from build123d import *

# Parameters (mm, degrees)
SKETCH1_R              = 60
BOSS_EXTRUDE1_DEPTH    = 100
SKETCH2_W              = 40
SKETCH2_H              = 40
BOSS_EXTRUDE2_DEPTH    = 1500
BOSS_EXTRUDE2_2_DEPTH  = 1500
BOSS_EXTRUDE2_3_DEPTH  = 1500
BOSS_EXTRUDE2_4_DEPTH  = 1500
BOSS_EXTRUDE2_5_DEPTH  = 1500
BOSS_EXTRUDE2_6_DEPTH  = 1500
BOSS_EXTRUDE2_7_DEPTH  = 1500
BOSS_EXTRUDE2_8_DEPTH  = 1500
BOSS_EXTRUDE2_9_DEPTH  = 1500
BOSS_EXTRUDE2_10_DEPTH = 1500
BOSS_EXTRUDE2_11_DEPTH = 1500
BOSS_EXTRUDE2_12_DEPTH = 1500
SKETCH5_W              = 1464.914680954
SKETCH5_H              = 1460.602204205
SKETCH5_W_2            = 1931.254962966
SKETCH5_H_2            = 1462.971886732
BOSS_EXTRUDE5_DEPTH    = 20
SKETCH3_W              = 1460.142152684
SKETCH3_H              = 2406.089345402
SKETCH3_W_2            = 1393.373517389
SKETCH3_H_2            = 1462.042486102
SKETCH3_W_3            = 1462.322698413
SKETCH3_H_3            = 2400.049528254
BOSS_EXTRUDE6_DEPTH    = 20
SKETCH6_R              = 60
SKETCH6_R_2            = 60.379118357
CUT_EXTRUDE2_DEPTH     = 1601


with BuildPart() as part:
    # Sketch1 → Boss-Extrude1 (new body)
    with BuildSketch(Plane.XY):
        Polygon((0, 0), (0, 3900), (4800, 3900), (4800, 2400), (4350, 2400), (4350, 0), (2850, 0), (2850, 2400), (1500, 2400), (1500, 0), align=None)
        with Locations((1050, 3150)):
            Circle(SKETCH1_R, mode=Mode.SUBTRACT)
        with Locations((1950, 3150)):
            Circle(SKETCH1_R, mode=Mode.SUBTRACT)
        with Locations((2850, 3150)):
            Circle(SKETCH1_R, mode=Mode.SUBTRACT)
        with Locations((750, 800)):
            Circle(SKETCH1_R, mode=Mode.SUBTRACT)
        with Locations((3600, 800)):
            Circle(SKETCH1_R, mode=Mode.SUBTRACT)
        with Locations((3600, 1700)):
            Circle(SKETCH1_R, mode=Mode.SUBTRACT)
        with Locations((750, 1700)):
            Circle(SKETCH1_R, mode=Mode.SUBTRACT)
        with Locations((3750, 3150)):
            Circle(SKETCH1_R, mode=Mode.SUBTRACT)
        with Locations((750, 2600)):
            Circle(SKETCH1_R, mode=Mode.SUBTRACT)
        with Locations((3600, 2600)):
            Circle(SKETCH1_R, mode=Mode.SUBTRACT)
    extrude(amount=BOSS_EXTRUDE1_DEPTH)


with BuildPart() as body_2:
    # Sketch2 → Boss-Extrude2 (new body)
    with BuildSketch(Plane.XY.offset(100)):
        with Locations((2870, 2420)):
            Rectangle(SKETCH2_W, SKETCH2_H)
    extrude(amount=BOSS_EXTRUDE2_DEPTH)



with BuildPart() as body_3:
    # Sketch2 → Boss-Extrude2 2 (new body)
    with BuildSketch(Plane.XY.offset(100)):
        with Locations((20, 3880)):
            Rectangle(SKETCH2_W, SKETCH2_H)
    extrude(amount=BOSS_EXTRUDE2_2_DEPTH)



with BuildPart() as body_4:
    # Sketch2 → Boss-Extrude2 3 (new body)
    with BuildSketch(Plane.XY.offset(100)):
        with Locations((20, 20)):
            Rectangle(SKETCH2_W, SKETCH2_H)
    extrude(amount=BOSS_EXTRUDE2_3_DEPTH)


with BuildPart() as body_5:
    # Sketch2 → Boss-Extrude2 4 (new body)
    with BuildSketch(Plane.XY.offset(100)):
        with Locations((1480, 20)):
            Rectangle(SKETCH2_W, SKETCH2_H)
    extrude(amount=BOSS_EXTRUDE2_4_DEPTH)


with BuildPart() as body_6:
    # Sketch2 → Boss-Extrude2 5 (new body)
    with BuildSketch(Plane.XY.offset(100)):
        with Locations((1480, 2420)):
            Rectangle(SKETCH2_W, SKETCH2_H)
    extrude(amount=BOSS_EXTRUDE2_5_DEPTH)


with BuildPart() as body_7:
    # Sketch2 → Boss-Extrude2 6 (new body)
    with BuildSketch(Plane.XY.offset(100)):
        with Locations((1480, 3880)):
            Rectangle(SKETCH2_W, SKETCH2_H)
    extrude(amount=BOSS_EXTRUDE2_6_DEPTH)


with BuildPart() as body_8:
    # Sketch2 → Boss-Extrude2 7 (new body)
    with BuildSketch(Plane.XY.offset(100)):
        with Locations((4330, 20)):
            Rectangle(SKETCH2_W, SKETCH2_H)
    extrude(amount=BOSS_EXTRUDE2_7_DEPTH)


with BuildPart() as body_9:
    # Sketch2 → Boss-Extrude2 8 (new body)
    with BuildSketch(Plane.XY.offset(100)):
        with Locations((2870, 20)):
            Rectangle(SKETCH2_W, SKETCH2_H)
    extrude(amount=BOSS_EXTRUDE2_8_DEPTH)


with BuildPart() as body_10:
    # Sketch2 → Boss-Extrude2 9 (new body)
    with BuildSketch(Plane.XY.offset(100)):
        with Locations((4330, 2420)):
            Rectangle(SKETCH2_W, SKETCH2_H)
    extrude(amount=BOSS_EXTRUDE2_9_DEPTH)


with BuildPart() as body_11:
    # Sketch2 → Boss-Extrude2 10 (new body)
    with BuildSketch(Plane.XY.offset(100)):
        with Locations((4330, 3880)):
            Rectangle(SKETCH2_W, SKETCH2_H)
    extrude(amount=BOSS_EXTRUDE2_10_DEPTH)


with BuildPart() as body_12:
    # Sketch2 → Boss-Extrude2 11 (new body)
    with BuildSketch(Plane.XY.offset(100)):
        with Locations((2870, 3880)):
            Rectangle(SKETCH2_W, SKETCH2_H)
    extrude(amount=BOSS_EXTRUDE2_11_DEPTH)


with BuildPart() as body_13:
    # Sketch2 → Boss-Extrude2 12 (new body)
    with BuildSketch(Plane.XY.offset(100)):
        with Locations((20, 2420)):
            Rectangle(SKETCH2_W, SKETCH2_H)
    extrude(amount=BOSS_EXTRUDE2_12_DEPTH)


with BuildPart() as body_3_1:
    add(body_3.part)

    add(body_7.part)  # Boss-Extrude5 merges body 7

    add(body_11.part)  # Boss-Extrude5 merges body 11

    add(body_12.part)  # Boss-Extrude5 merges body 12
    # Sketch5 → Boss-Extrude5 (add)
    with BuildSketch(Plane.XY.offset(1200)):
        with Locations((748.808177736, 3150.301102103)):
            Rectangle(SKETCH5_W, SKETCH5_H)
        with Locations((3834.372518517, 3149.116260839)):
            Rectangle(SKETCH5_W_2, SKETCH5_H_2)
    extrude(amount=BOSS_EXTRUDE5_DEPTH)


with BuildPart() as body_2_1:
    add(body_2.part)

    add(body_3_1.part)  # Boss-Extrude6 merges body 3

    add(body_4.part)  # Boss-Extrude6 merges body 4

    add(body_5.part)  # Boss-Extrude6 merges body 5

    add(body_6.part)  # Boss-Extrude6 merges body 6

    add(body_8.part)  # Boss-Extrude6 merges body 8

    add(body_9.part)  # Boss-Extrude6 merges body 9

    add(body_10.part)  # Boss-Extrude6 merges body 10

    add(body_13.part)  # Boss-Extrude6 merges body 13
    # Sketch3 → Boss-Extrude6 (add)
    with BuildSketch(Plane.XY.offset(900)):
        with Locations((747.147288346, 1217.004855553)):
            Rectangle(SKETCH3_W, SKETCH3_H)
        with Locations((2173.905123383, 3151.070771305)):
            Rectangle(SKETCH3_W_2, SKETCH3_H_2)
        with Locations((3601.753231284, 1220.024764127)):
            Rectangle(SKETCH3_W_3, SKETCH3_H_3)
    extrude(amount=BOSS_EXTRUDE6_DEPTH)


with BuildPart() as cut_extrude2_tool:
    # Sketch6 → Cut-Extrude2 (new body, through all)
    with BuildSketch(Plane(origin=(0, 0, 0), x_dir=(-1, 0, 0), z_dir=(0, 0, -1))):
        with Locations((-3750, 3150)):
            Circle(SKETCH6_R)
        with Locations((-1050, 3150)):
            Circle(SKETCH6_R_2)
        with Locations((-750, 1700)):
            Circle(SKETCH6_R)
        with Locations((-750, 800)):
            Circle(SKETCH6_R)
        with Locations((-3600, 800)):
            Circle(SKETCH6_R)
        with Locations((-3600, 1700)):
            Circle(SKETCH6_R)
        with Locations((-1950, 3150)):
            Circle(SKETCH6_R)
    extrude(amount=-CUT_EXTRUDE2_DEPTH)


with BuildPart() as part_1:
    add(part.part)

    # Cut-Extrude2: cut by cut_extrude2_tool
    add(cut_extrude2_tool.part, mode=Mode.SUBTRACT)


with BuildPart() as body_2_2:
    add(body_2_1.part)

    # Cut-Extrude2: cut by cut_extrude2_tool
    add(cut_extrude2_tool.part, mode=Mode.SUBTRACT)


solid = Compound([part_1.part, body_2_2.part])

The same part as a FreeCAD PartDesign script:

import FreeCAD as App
import Part
import Sketcher
from FreeCAD import Vector


def add_polygon(sketch, points):
    """Adds a closed chain of lines whose ends are joined by coincident constraints."""
    first, n = sketch.GeometryCount, len(points)
    for a, b in zip(points, points[1:] + points[:1]):
        sketch.addGeometry(Part.LineSegment(App.Vector(*a, 0), App.Vector(*b, 0)), False)
    for i in range(n):
        sketch.addConstraint(Sketcher.Constraint("Coincident", first + i, 2, first + (i + 1) % n, 1))

doc = App.newDocument("Part")
params = doc.addObject("Spreadsheet::Sheet", "Params")
for row, (alias, value) in enumerate([
    ("sketch1_diameter", "120 mm"),
    ("sketch1_width", "1500 mm"),
    ("sketch1_width2", "1350 mm"),
    ("sketch1_width3", "450 mm"),
    ("sketch1_height", "3900 mm"),
    ("pad1_length", "100 mm"),
    ("sketch2_width", "40 mm"),
    ("pad2_length", "1500 mm"),
    ("sketch3_width", "40 mm"),
    ("pad3_length", "1500 mm"),
    ("sketch4_width", "40 mm"),
    ("pad4_length", "1500 mm"),
    ("sketch5_width", "40 mm"),
    ("pad5_length", "1500 mm"),
    ("sketch6_width", "40 mm"),
    ("pad6_length", "1500 mm"),
    ("sketch7_width", "40 mm"),
    ("pad7_length", "1500 mm"),
    ("sketch8_width", "40 mm"),
    ("pad8_length", "1500 mm"),
    ("sketch9_width", "40 mm"),
    ("pad9_length", "1500 mm"),
    ("sketch10_width", "40 mm"),
    ("pad10_length", "1500 mm"),
    ("sketch11_width", "40 mm"),
    ("pad11_length", "1500 mm"),
    ("sketch12_width", "40 mm"),
    ("pad12_length", "1500 mm"),
    ("sketch13_width", "40 mm"),
    ("pad13_length", "1500 mm"),
    ("pad14_length", "20 mm"),
    ("pad15_length", "20 mm"),
    ("sketch16_diameter", "120 mm"),
    ("pad16_length", "1601 mm"),
], start=1):
    params.set(f"A{row}", alias)
    params.set(f"B{row}", "=" + value)
    params.setAlias(f"B{row}", alias)

body = doc.addObject("PartDesign::Body", "Body")

# Sketch on XY plane
sketch1 = doc.addObject("Sketcher::SketchObject", "Sketch")
body.addObject(sketch1)
sketch1.AttachmentSupport = (doc.XY_Plane, [""])
sketch1.MapMode = "FlatFace"
add_polygon(sketch1, [(0, 3900), (0, 0), (1500, 0), (1500, 2400), (2850, 2400), (2850, 0), (4350, 0), (4350, 2400), (4800, 2400), (4800, 3900)])  # lines 0-9
sketch1.addGeometry(Part.Circle(Vector(3600, 800, 0), Vector(0, 0, 1), 60), False)  # 10
sketch1.addGeometry(Part.Circle(Vector(3600, 1700, 0), Vector(0, 0, 1), 60), False)  # 11
sketch1.addGeometry(Part.Circle(Vector(750, 800, 0), Vector(0, 0, 1), 60), False)  # 12
sketch1.addGeometry(Part.Circle(Vector(750, 1700, 0), Vector(0, 0, 1), 60), False)  # 13
sketch1.addGeometry(Part.Circle(Vector(3600, 2600, 0), Vector(0, 0, 1), 60), False)  # 14
sketch1.addGeometry(Part.Circle(Vector(3750, 3150, 0), Vector(0, 0, 1), 60), False)  # 15
sketch1.addGeometry(Part.Circle(Vector(2850, 3150, 0), Vector(0, 0, 1), 60), False)  # 16
sketch1.addGeometry(Part.Circle(Vector(1950, 3150, 0), Vector(0, 0, 1), 60), False)  # 17
sketch1.addGeometry(Part.Circle(Vector(750, 2600, 0), Vector(0, 0, 1), 60), False)  # 18
sketch1.addGeometry(Part.Circle(Vector(1050, 3150, 0), Vector(0, 0, 1), 60), False)  # 19
sketch1.addConstraint(Sketcher.Constraint("Vertical", 0))
sketch1.addConstraint(Sketcher.Constraint("Horizontal", 1))
sketch1.addConstraint(Sketcher.Constraint("Vertical", 2))
sketch1.addConstraint(Sketcher.Constraint("Horizontal", 3))
sketch1.addConstraint(Sketcher.Constraint("Vertical", 4))
sketch1.addConstraint(Sketcher.Constraint("Horizontal", 5))
sketch1.addConstraint(Sketcher.Constraint("Vertical", 6))
sketch1.addConstraint(Sketcher.Constraint("Horizontal", 7))
sketch1.addConstraint(Sketcher.Constraint("Vertical", 8))
sketch1.addConstraint(Sketcher.Constraint("Horizontal", 9))
sketch1.addConstraint(Sketcher.Constraint("Coincident", 0, 2, -1, 1))
sketch1.addConstraint(Sketcher.Constraint("Equal", 10, 11))
sketch1.addConstraint(Sketcher.Constraint("Equal", 11, 12))
sketch1.addConstraint(Sketcher.Constraint("Equal", 12, 13))
sketch1.addConstraint(Sketcher.Constraint("Equal", 13, 14))
sketch1.addConstraint(Sketcher.Constraint("Equal", 14, 15))
sketch1.addConstraint(Sketcher.Constraint("Equal", 15, 16))
sketch1.addConstraint(Sketcher.Constraint("Equal", 16, 17))
sketch1.addConstraint(Sketcher.Constraint("Equal", 17, 18))
sketch1.addConstraint(Sketcher.Constraint("Equal", 18, 19))
sketch1.addConstraint(Sketcher.Constraint("PointOnObject", 4, 2, -1))
sketch1.addConstraint(Sketcher.Constraint("Horizontal", 10, 3, 12, 3))
sketch1.addConstraint(Sketcher.Constraint("Horizontal", 11, 3, 13, 3))
sketch1.addConstraint(Sketcher.Constraint("Horizontal", 15, 3, 16, 3))
sketch1.addConstraint(Sketcher.Constraint("Horizontal", 16, 3, 17, 3))
sketch1.addConstraint(Sketcher.Constraint("Horizontal", 14, 3, 18, 3))
sketch1.addConstraint(Sketcher.Constraint("Horizontal", 17, 3, 19, 3))
sketch1.addConstraint(Sketcher.Constraint("Horizontal", 3, 2, 6, 2))
sketch1.addConstraint(Sketcher.Constraint("Vertical", 10, 3, 11, 3))
sketch1.addConstraint(Sketcher.Constraint("Vertical", 12, 3, 13, 3))
sketch1.addConstraint(Sketcher.Constraint("Vertical", 11, 3, 14, 3))
sketch1.addConstraint(Sketcher.Constraint("Vertical", 13, 3, 18, 3))
sketch1.addConstraint(Sketcher.Constraint("Vertical", 16, 3, 3, 2))
sketch1.addConstraint(Sketcher.Constraint("Equal", 1, 5))
sketch1.addConstraint(Sketcher.Constraint("Equal", 5, 8))
sketch1.addConstraint(Sketcher.Constraint("Diameter", 10, 120.0))
sketch1.addConstraint(Sketcher.Constraint("DistanceX", 1, 1, 1, 2, 1500.0))
sketch1.addConstraint(Sketcher.Constraint("DistanceX", 3, 1, 3, 2, 1350.0))
sketch1.addConstraint(Sketcher.Constraint("DistanceX", 7, 1, 7, 2, 450.0))
sketch1.addConstraint(Sketcher.Constraint("DistanceY", 0, 2, 0, 1, 3900.0))
sketch1.addConstraint(Sketcher.Constraint("DistanceX", -1, 1, 10, 3, 3600.0))
sketch1.addConstraint(Sketcher.Constraint("DistanceY", -1, 1, 10, 3, 800.0))
sketch1.addConstraint(Sketcher.Constraint("DistanceY", -1, 1, 11, 3, 1700.0))
sketch1.addConstraint(Sketcher.Constraint("DistanceX", -1, 1, 12, 3, 750.0))
sketch1.addConstraint(Sketcher.Constraint("DistanceY", -1, 1, 14, 3, 2600.0))
sketch1.addConstraint(Sketcher.Constraint("DistanceX", -1, 1, 15, 3, 3750.0))
sketch1.addConstraint(Sketcher.Constraint("DistanceY", -1, 1, 15, 3, 3150.0))
sketch1.addConstraint(Sketcher.Constraint("DistanceX", -1, 1, 17, 3, 1950.0))
sketch1.addConstraint(Sketcher.Constraint("DistanceX", -1, 1, 19, 3, 1050.0))
sketch1.setExpression("Constraints[45]", "Params.sketch1_diameter")
sketch1.setExpression("Constraints[46]", "Params.sketch1_width")
sketch1.setExpression("Constraints[47]", "Params.sketch1_width2")
sketch1.setExpression("Constraints[48]", "Params.sketch1_width3")
sketch1.setExpression("Constraints[49]", "Params.sketch1_height")
pad1 = doc.addObject("PartDesign::Pad", "Pad")
body.addObject(pad1)
pad1.Profile = sketch1
pad1.setExpression("Length", "Params.pad1_length")
body2 = doc.addObject("PartDesign::Body", "Body001")

# Sketch on XY plane
sketch2 = doc.addObject("Sketcher::SketchObject", "Sketch001")
body2.addObject(sketch2)
sketch2.AttachmentSupport = (doc.getObject("XY_Plane001"), [""])
sketch2.MapMode = "FlatFace"
sketch2.AttachmentOffset = App.Placement(Vector(0, 0, 100), App.Rotation())
add_polygon(sketch2, [(2850, 2440), (2850, 2400), (2890, 2400), (2890, 2440)])  # lines 0-3
sketch2.addConstraint(Sketcher.Constraint("Vertical", 0))
sketch2.addConstraint(Sketcher.Constraint("Horizontal", 1))
sketch2.addConstraint(Sketcher.Constraint("Vertical", 2))
sketch2.addConstraint(Sketcher.Constraint("Horizontal", 3))
sketch2.addConstraint(Sketcher.Constraint("Equal", 3, 0))
sketch2.addConstraint(Sketcher.Constraint("DistanceX", 1, 1, 1, 2, 40.0))
sketch2.addConstraint(Sketcher.Constraint("DistanceX", -1, 1, 0, 2, 2850.0))
sketch2.addConstraint(Sketcher.Constraint("DistanceY", -1, 1, 0, 2, 2400.0))
sketch2.setExpression("Constraints[9]", "Params.sketch2_width")
pad2 = doc.addObject("PartDesign::Pad", "Pad001")
body2.addObject(pad2)
pad2.Profile = sketch2
pad2.setExpression("Length", "Params.pad2_length")
body3 = doc.addObject("PartDesign::Body", "Body002")

# Sketch on XY plane
sketch3 = doc.addObject("Sketcher::SketchObject", "Sketch002")
body3.addObject(sketch3)
sketch3.AttachmentSupport = (doc.getObject("XY_Plane002"), [""])
sketch3.MapMode = "FlatFace"
sketch3.AttachmentOffset = App.Placement(Vector(0, 0, 100), App.Rotation())
add_polygon(sketch3, [(0, 3900), (0, 3860), (40, 3860), (40, 3900)])  # lines 0-3
sketch3.addConstraint(Sketcher.Constraint("Vertical", 0))
sketch3.addConstraint(Sketcher.Constraint("Horizontal", 1))
sketch3.addConstraint(Sketcher.Constraint("Vertical", 2))
sketch3.addConstraint(Sketcher.Constraint("Horizontal", 3))
sketch3.addConstraint(Sketcher.Constraint("PointOnObject", 0, 2, -2))
sketch3.addConstraint(Sketcher.Constraint("Equal", 3, 0))
sketch3.addConstraint(Sketcher.Constraint("DistanceX", 1, 1, 1, 2, 40.0))
sketch3.addConstraint(Sketcher.Constraint("DistanceY", -1, 1, 0, 2, 3860.0))
sketch3.setExpression("Constraints[10]", "Params.sketch3_width")
pad3 = doc.addObject("PartDesign::Pad", "Pad002")
body3.addObject(pad3)
pad3.Profile = sketch3
pad3.setExpression("Length", "Params.pad3_length")
body4 = doc.addObject("PartDesign::Body", "Body003")

# Sketch on XY plane
sketch4 = doc.addObject("Sketcher::SketchObject", "Sketch003")
body4.addObject(sketch4)
sketch4.AttachmentSupport = (doc.getObject("XY_Plane003"), [""])
sketch4.MapMode = "FlatFace"
sketch4.AttachmentOffset = App.Placement(Vector(0, 0, 100), App.Rotation())
add_polygon(sketch4, [(0, 40), (0, 0), (40, 0), (40, 40)])  # lines 0-3
sketch4.addConstraint(Sketcher.Constraint("Vertical", 0))
sketch4.addConstraint(Sketcher.Constraint("Horizontal", 1))
sketch4.addConstraint(Sketcher.Constraint("Vertical", 2))
sketch4.addConstraint(Sketcher.Constraint("Horizontal", 3))
sketch4.addConstraint(Sketcher.Constraint("Coincident", 0, 2, -1, 1))
sketch4.addConstraint(Sketcher.Constraint("Equal", 3, 0))
sketch4.addConstraint(Sketcher.Constraint("DistanceX", 1, 1, 1, 2, 40.0))
sketch4.setExpression("Constraints[10]", "Params.sketch4_width")
pad4 = doc.addObject("PartDesign::Pad", "Pad003")
body4.addObject(pad4)
pad4.Profile = sketch4
pad4.setExpression("Length", "Params.pad4_length")
body5 = doc.addObject("PartDesign::Body", "Body004")

# Sketch on XY plane
sketch5 = doc.addObject("Sketcher::SketchObject", "Sketch004")
body5.addObject(sketch5)
sketch5.AttachmentSupport = (doc.getObject("XY_Plane004"), [""])
sketch5.MapMode = "FlatFace"
sketch5.AttachmentOffset = App.Placement(Vector(0, 0, 100), App.Rotation())
add_polygon(sketch5, [(1460, 40), (1460, 0), (1500, 0), (1500, 40)])  # lines 0-3
sketch5.addConstraint(Sketcher.Constraint("Vertical", 0))
sketch5.addConstraint(Sketcher.Constraint("Horizontal", 1))
sketch5.addConstraint(Sketcher.Constraint("Vertical", 2))
sketch5.addConstraint(Sketcher.Constraint("Horizontal", 3))
sketch5.addConstraint(Sketcher.Constraint("PointOnObject", 0, 2, -1))
sketch5.addConstraint(Sketcher.Constraint("Equal", 3, 0))
sketch5.addConstraint(Sketcher.Constraint("DistanceX", 1, 1, 1, 2, 40.0))
sketch5.addConstraint(Sketcher.Constraint("DistanceX", -1, 1, 0, 2, 1460.0))
sketch5.setExpression("Constraints[10]", "Params.sketch5_width")
pad5 = doc.addObject("PartDesign::Pad", "Pad004")
body5.addObject(pad5)
pad5.Profile = sketch5
pad5.setExpression("Length", "Params.pad5_length")
body6 = doc.addObject("PartDesign::Body", "Body005")

# Sketch on XY plane
sketch6 = doc.addObject("Sketcher::SketchObject", "Sketch005")
body6.addObject(sketch6)
sketch6.AttachmentSupport = (doc.getObject("XY_Plane005"), [""])
sketch6.MapMode = "FlatFace"
sketch6.AttachmentOffset = App.Placement(Vector(0, 0, 100), App.Rotation())
add_polygon(sketch6, [(1460, 2440), (1460, 2400), (1500, 2400), (1500, 2440)])  # lines 0-3
sketch6.addConstraint(Sketcher.Constraint("Vertical", 0))
sketch6.addConstraint(Sketcher.Constraint("Horizontal", 1))
sketch6.addConstraint(Sketcher.Constraint("Vertical", 2))
sketch6.addConstraint(Sketcher.Constraint("Horizontal", 3))
sketch6.addConstraint(Sketcher.Constraint("Equal", 3, 0))
sketch6.addConstraint(Sketcher.Constraint("DistanceX", 1, 1, 1, 2, 40.0))
sketch6.addConstraint(Sketcher.Constraint("DistanceX", -1, 1, 0, 2, 1460.0))
sketch6.addConstraint(Sketcher.Constraint("DistanceY", -1, 1, 0, 2, 2400.0))
sketch6.setExpression("Constraints[9]", "Params.sketch6_width")
pad6 = doc.addObject("PartDesign::Pad", "Pad005")
body6.addObject(pad6)
pad6.Profile = sketch6
pad6.setExpression("Length", "Params.pad6_length")
body7 = doc.addObject("PartDesign::Body", "Body006")

# Sketch on XY plane
sketch7 = doc.addObject("Sketcher::SketchObject", "Sketch006")
body7.addObject(sketch7)
sketch7.AttachmentSupport = (doc.getObject("XY_Plane006"), [""])
sketch7.MapMode = "FlatFace"
sketch7.AttachmentOffset = App.Placement(Vector(0, 0, 100), App.Rotation())
add_polygon(sketch7, [(1460, 3900), (1460, 3860), (1500, 3860), (1500, 3900)])  # lines 0-3
sketch7.addConstraint(Sketcher.Constraint("Vertical", 0))
sketch7.addConstraint(Sketcher.Constraint("Horizontal", 1))
sketch7.addConstraint(Sketcher.Constraint("Vertical", 2))
sketch7.addConstraint(Sketcher.Constraint("Horizontal", 3))
sketch7.addConstraint(Sketcher.Constraint("Equal", 3, 0))
sketch7.addConstraint(Sketcher.Constraint("DistanceX", 1, 1, 1, 2, 40.0))
sketch7.addConstraint(Sketcher.Constraint("DistanceX", -1, 1, 0, 2, 1460.0))
sketch7.addConstraint(Sketcher.Constraint("DistanceY", -1, 1, 0, 2, 3860.0))
sketch7.setExpression("Constraints[9]", "Params.sketch7_width")
pad7 = doc.addObject("PartDesign::Pad", "Pad006")
body7.addObject(pad7)
pad7.Profile = sketch7
pad7.setExpression("Length", "Params.pad7_length")
body8 = doc.addObject("PartDesign::Body", "Body007")

# Sketch on XY plane
sketch8 = doc.addObject("Sketcher::SketchObject", "Sketch007")
body8.addObject(sketch8)
sketch8.AttachmentSupport = (doc.getObject("XY_Plane007"), [""])
sketch8.MapMode = "FlatFace"
sketch8.AttachmentOffset = App.Placement(Vector(0, 0, 100), App.Rotation())
add_polygon(sketch8, [(4310, 40), (4310, 0), (4350, 0), (4350, 40)])  # lines 0-3
sketch8.addConstraint(Sketcher.Constraint("Vertical", 0))
sketch8.addConstraint(Sketcher.Constraint("Horizontal", 1))
sketch8.addConstraint(Sketcher.Constraint("Vertical", 2))
sketch8.addConstraint(Sketcher.Constraint("Horizontal", 3))
sketch8.addConstraint(Sketcher.Constraint("PointOnObject", 0, 2, -1))
sketch8.addConstraint(Sketcher.Constraint("Equal", 3, 0))
sketch8.addConstraint(Sketcher.Constraint("DistanceX", 1, 1, 1, 2, 40.0))
sketch8.addConstraint(Sketcher.Constraint("DistanceX", -1, 1, 0, 2, 4310.0))
sketch8.setExpression("Constraints[10]", "Params.sketch8_width")
pad8 = doc.addObject("PartDesign::Pad", "Pad007")
body8.addObject(pad8)
pad8.Profile = sketch8
pad8.setExpression("Length", "Params.pad8_length")
body9 = doc.addObject("PartDesign::Body", "Body008")

# Sketch on XY plane
sketch9 = doc.addObject("Sketcher::SketchObject", "Sketch008")
body9.addObject(sketch9)
sketch9.AttachmentSupport = (doc.getObject("XY_Plane008"), [""])
sketch9.MapMode = "FlatFace"
sketch9.AttachmentOffset = App.Placement(Vector(0, 0, 100), App.Rotation())
add_polygon(sketch9, [(2850, 40), (2850, 0), (2890, 0), (2890, 40)])  # lines 0-3
sketch9.addConstraint(Sketcher.Constraint("Vertical", 0))
sketch9.addConstraint(Sketcher.Constraint("Horizontal", 1))
sketch9.addConstraint(Sketcher.Constraint("Vertical", 2))
sketch9.addConstraint(Sketcher.Constraint("Horizontal", 3))
sketch9.addConstraint(Sketcher.Constraint("PointOnObject", 0, 2, -1))
sketch9.addConstraint(Sketcher.Constraint("Equal", 3, 0))
sketch9.addConstraint(Sketcher.Constraint("DistanceX", 1, 1, 1, 2, 40.0))
sketch9.addConstraint(Sketcher.Constraint("DistanceX", -1, 1, 0, 2, 2850.0))
sketch9.setExpression("Constraints[10]", "Params.sketch9_width")
pad9 = doc.addObject("PartDesign::Pad", "Pad008")
body9.addObject(pad9)
pad9.Profile = sketch9
pad9.setExpression("Length", "Params.pad9_length")
body10 = doc.addObject("PartDesign::Body", "Body009")

# Sketch on XY plane
sketch10 = doc.addObject("Sketcher::SketchObject", "Sketch009")
body10.addObject(sketch10)
sketch10.AttachmentSupport = (doc.getObject("XY_Plane009"), [""])
sketch10.MapMode = "FlatFace"
sketch10.AttachmentOffset = App.Placement(Vector(0, 0, 100), App.Rotation())
add_polygon(sketch10, [(4310, 2440), (4310, 2400), (4350, 2400), (4350, 2440)])  # lines 0-3
sketch10.addConstraint(Sketcher.Constraint("Vertical", 0))
sketch10.addConstraint(Sketcher.Constraint("Horizontal", 1))
sketch10.addConstraint(Sketcher.Constraint("Vertical", 2))
sketch10.addConstraint(Sketcher.Constraint("Horizontal", 3))
sketch10.addConstraint(Sketcher.Constraint("Equal", 3, 0))
sketch10.addConstraint(Sketcher.Constraint("DistanceX", 1, 1, 1, 2, 40.0))
sketch10.addConstraint(Sketcher.Constraint("DistanceX", -1, 1, 0, 2, 4310.0))
sketch10.addConstraint(Sketcher.Constraint("DistanceY", -1, 1, 0, 2, 2400.0))
sketch10.setExpression("Constraints[9]", "Params.sketch10_width")
pad10 = doc.addObject("PartDesign::Pad", "Pad009")
body10.addObject(pad10)
pad10.Profile = sketch10
pad10.setExpression("Length", "Params.pad10_length")
body11 = doc.addObject("PartDesign::Body", "Body010")

# Sketch on XY plane
sketch11 = doc.addObject("Sketcher::SketchObject", "Sketch010")
body11.addObject(sketch11)
sketch11.AttachmentSupport = (doc.getObject("XY_Plane010"), [""])
sketch11.MapMode = "FlatFace"
sketch11.AttachmentOffset = App.Placement(Vector(0, 0, 100), App.Rotation())
add_polygon(sketch11, [(4310, 3900), (4310, 3860), (4350, 3860), (4350, 3900)])  # lines 0-3
sketch11.addConstraint(Sketcher.Constraint("Vertical", 0))
sketch11.addConstraint(Sketcher.Constraint("Horizontal", 1))
sketch11.addConstraint(Sketcher.Constraint("Vertical", 2))
sketch11.addConstraint(Sketcher.Constraint("Horizontal", 3))
sketch11.addConstraint(Sketcher.Constraint("Equal", 3, 0))
sketch11.addConstraint(Sketcher.Constraint("DistanceX", 1, 1, 1, 2, 40.0))
sketch11.addConstraint(Sketcher.Constraint("DistanceX", -1, 1, 0, 2, 4310.0))
sketch11.addConstraint(Sketcher.Constraint("DistanceY", -1, 1, 0, 2, 3860.0))
sketch11.setExpression("Constraints[9]", "Params.sketch11_width")
pad11 = doc.addObject("PartDesign::Pad", "Pad010")
body11.addObject(pad11)
pad11.Profile = sketch11
pad11.setExpression("Length", "Params.pad11_length")
body12 = doc.addObject("PartDesign::Body", "Body011")

# Sketch on XY plane
sketch12 = doc.addObject("Sketcher::SketchObject", "Sketch011")
body12.addObject(sketch12)
sketch12.AttachmentSupport = (doc.getObject("XY_Plane011"), [""])
sketch12.MapMode = "FlatFace"
sketch12.AttachmentOffset = App.Placement(Vector(0, 0, 100), App.Rotation())
add_polygon(sketch12, [(2850, 3900), (2850, 3860), (2890, 3860), (2890, 3900)])  # lines 0-3
sketch12.addConstraint(Sketcher.Constraint("Vertical", 0))
sketch12.addConstraint(Sketcher.Constraint("Horizontal", 1))
sketch12.addConstraint(Sketcher.Constraint("Vertical", 2))
sketch12.addConstraint(Sketcher.Constraint("Horizontal", 3))
sketch12.addConstraint(Sketcher.Constraint("Equal", 3, 0))
sketch12.addConstraint(Sketcher.Constraint("DistanceX", 1, 1, 1, 2, 40.0))
sketch12.addConstraint(Sketcher.Constraint("DistanceX", -1, 1, 0, 2, 2850.0))
sketch12.addConstraint(Sketcher.Constraint("DistanceY", -1, 1, 0, 2, 3860.0))
sketch12.setExpression("Constraints[9]", "Params.sketch12_width")
pad12 = doc.addObject("PartDesign::Pad", "Pad011")
body12.addObject(pad12)
pad12.Profile = sketch12
pad12.setExpression("Length", "Params.pad12_length")
body13 = doc.addObject("PartDesign::Body", "Body012")

# Sketch on XY plane
sketch13 = doc.addObject("Sketcher::SketchObject", "Sketch012")
body13.addObject(sketch13)
sketch13.AttachmentSupport = (doc.getObject("XY_Plane012"), [""])
sketch13.MapMode = "FlatFace"
sketch13.AttachmentOffset = App.Placement(Vector(0, 0, 100), App.Rotation())
add_polygon(sketch13, [(0, 2440), (0, 2400), (40, 2400), (40, 2440)])  # lines 0-3
sketch13.addConstraint(Sketcher.Constraint("Vertical", 0))
sketch13.addConstraint(Sketcher.Constraint("Horizontal", 1))
sketch13.addConstraint(Sketcher.Constraint("Vertical", 2))
sketch13.addConstraint(Sketcher.Constraint("Horizontal", 3))
sketch13.addConstraint(Sketcher.Constraint("PointOnObject", 0, 2, -2))
sketch13.addConstraint(Sketcher.Constraint("Equal", 3, 0))
sketch13.addConstraint(Sketcher.Constraint("DistanceX", 1, 1, 1, 2, 40.0))
sketch13.addConstraint(Sketcher.Constraint("DistanceY", -1, 1, 0, 2, 2400.0))
sketch13.setExpression("Constraints[10]", "Params.sketch13_width")
pad13 = doc.addObject("PartDesign::Pad", "Pad012")
body13.addObject(pad13)
pad13.Profile = sketch13
pad13.setExpression("Length", "Params.pad13_length")
body3.AllowCompound = True
doc.recompute()

boolean = doc.addObject("PartDesign::Boolean", "Boolean")
body3.addObject(boolean)
boolean.Type = "Fuse"
boolean.addObjects([body7])
doc.recompute()

boolean2 = doc.addObject("PartDesign::Boolean", "Boolean001")
body3.addObject(boolean2)
boolean2.Type = "Fuse"
boolean2.addObjects([body11])
doc.recompute()

boolean3 = doc.addObject("PartDesign::Boolean", "Boolean002")
body3.addObject(boolean3)
boolean3.Type = "Fuse"
boolean3.addObjects([body12])

# Sketch on XY plane
sketch14 = doc.addObject("Sketcher::SketchObject", "Sketch013")
body3.addObject(sketch14)
sketch14.AttachmentSupport = (doc.getObject("XY_Plane002"), [""])
sketch14.MapMode = "FlatFace"
sketch14.AttachmentOffset = App.Placement(Vector(0, 0, 1200), App.Rotation())
add_polygon(sketch14, [(16, 3881), (16, 2420), (1481, 2420), (1481, 3881)])  # lines 0-3
add_polygon(sketch14, [(2869, 3881), (2869, 2418), (4800, 2418), (4800, 3881)])  # lines 4-7
sketch14.addConstraint(Sketcher.Constraint("Vertical", 0))
sketch14.addConstraint(Sketcher.Constraint("Horizontal", 1))
sketch14.addConstraint(Sketcher.Constraint("Vertical", 2))
sketch14.addConstraint(Sketcher.Constraint("Horizontal", 3))
sketch14.addConstraint(Sketcher.Constraint("Vertical", 4))
sketch14.addConstraint(Sketcher.Constraint("Horizontal", 5))
sketch14.addConstraint(Sketcher.Constraint("Vertical", 6))
sketch14.addConstraint(Sketcher.Constraint("Horizontal", 7))
sketch14.addConstraint(Sketcher.Constraint("Horizontal", 3, 2, 6, 2))
sketch14.addConstraint(Sketcher.Constraint("DistanceY", -1, 1, 0, 2, 2420.0))
sketch14.addConstraint(Sketcher.Constraint("DistanceX", -1, 1, 5, 2, 4800.0))
sketch14.addConstraint(Sketcher.Constraint("DistanceX", 1, 1, 1, 2, 1464.914681))
sketch14.addConstraint(Sketcher.Constraint("DistanceX", 0, 2, 4, 2, 2852.3942))
sketch14.addConstraint(Sketcher.Constraint("DistanceX", 5, 1, 5, 2, 1931.254963))
sketch14.addConstraint(Sketcher.Constraint("DistanceY", 0, 2, 0, 1, 1460.602204))
sketch14.addConstraint(Sketcher.Constraint("DistanceY", 4, 2, 4, 1, 1462.971887))
pad14 = doc.addObject("PartDesign::Pad", "Pad013")
body3.addObject(pad14)
pad14.Profile = sketch14
pad14.setExpression("Length", "Params.pad14_length")
body2.AllowCompound = True
doc.recompute()

boolean4 = doc.addObject("PartDesign::Boolean", "Boolean003")
body2.addObject(boolean4)
boolean4.Type = "Fuse"
boolean4.addObjects([body3])
doc.recompute()

boolean5 = doc.addObject("PartDesign::Boolean", "Boolean004")
body2.addObject(boolean5)
boolean5.Type = "Fuse"
boolean5.addObjects([body4])
doc.recompute()

boolean6 = doc.addObject("PartDesign::Boolean", "Boolean005")
body2.addObject(boolean6)
boolean6.Type = "Fuse"
boolean6.addObjects([body5])
doc.recompute()

boolean7 = doc.addObject("PartDesign::Boolean", "Boolean006")
body2.addObject(boolean7)
boolean7.Type = "Fuse"
boolean7.addObjects([body6])
doc.recompute()

boolean8 = doc.addObject("PartDesign::Boolean", "Boolean007")
body2.addObject(boolean8)
boolean8.Type = "Fuse"
boolean8.addObjects([body8])
doc.recompute()

boolean9 = doc.addObject("PartDesign::Boolean", "Boolean008")
body2.addObject(boolean9)
boolean9.Type = "Fuse"
boolean9.addObjects([body9])
doc.recompute()

boolean10 = doc.addObject("PartDesign::Boolean", "Boolean009")
body2.addObject(boolean10)
boolean10.Type = "Fuse"
boolean10.addObjects([body10])
doc.recompute()

boolean11 = doc.addObject("PartDesign::Boolean", "Boolean010")
body2.addObject(boolean11)
boolean11.Type = "Fuse"
boolean11.addObjects([body13])

# Sketch on XY plane
sketch15 = doc.addObject("Sketcher::SketchObject", "Sketch014")
body2.addObject(sketch15)
sketch15.AttachmentSupport = (doc.getObject("XY_Plane001"), [""])
sketch15.MapMode = "FlatFace"
sketch15.AttachmentOffset = App.Placement(Vector(0, 0, 900), App.Rotation())
add_polygon(sketch15, [(17, 2420), (17, 14), (1477, 14), (1477, 2420)])  # lines 0-3
add_polygon(sketch15, [(1477, 3882), (1477, 2420), (2871, 2420), (2871, 3882)])  # lines 4-7
add_polygon(sketch15, [(2871, 2420), (2871, 20), (4333, 20), (4333, 2420)])  # lines 8-11
sketch15.addConstraint(Sketcher.Constraint("Vertical", 0))
sketch15.addConstraint(Sketcher.Constraint("Horizontal", 1))
sketch15.addConstraint(Sketcher.Constraint("Vertical", 2))
sketch15.addConstraint(Sketcher.Constraint("Horizontal", 3))
sketch15.addConstraint(Sketcher.Constraint("Vertical", 4))
sketch15.addConstraint(Sketcher.Constraint("Horizontal", 5))
sketch15.addConstraint(Sketcher.Constraint("Vertical", 6))
sketch15.addConstraint(Sketcher.Constraint("Horizontal", 7))
sketch15.addConstraint(Sketcher.Constraint("Vertical", 8))
sketch15.addConstraint(Sketcher.Constraint("Horizontal", 9))
sketch15.addConstraint(Sketcher.Constraint("Vertical", 10))
sketch15.addConstraint(Sketcher.Constraint("Horizontal", 11))
sketch15.addConstraint(Sketcher.Constraint("Coincident", 4, 2, 2, 2))
sketch15.addConstraint(Sketcher.Constraint("Coincident", 11, 2, 5, 2))
sketch15.addConstraint(Sketcher.Constraint("DistanceY", -1, 1, 8, 2, 20.0))
sketch15.addConstraint(Sketcher.Constraint("DistanceX", 9, 1, 9, 2, 1462.322698))
sketch15.addConstraint(Sketcher.Constraint("DistanceY", 8, 2, 8, 1, 2400.049528))
sketch15.addConstraint(Sketcher.Constraint("DistanceX", 1, 1, 1, 2, 1460.142153))
sketch15.addConstraint(Sketcher.Constraint("DistanceX", 5, 1, 5, 2, 1393.373517))
sketch15.addConstraint(Sketcher.Constraint("DistanceY", 0, 2, 0, 1, 2406.089345))
sketch15.addConstraint(Sketcher.Constraint("DistanceY", 4, 2, 4, 1, 1462.042486))
sketch15.addConstraint(Sketcher.Constraint("DistanceX", -1, 1, 9, 2, 4332.91458))
pad15 = doc.addObject("PartDesign::Pad", "Pad014")
body2.addObject(pad15)
pad15.Profile = sketch15
pad15.setExpression("Length", "Params.pad15_length")
body14 = doc.addObject("PartDesign::Body", "Body013")
body14.AllowCompound = True

# Sketch on XY plane
sketch16 = doc.addObject("Sketcher::SketchObject", "Sketch015")
body14.addObject(sketch16)
sketch16.AttachmentSupport = (doc.getObject("XY_Plane013"), [""])
sketch16.MapMode = "FlatFace"
sketch16.addGeometry(Part.Circle(Vector(3750, 3150, 0), Vector(0, 0, 1), 60), False)
sketch16.addGeometry(Part.Circle(Vector(1050, 3150, 0), Vector(0, 0, 1), 60), False)
sketch16.addGeometry(Part.Circle(Vector(750, 1700, 0), Vector(0, 0, 1), 60), False)
sketch16.addGeometry(Part.Circle(Vector(750, 800, 0), Vector(0, 0, 1), 60), False)
sketch16.addGeometry(Part.Circle(Vector(3600, 800, 0), Vector(0, 0, 1), 60), False)
sketch16.addGeometry(Part.Circle(Vector(3600, 1700, 0), Vector(0, 0, 1), 60), False)
sketch16.addGeometry(Part.Circle(Vector(1950, 3150, 0), Vector(0, 0, 1), 60), False)
sketch16.addConstraint(Sketcher.Constraint("Equal", 0, 2))
sketch16.addConstraint(Sketcher.Constraint("Equal", 2, 3))
sketch16.addConstraint(Sketcher.Constraint("Equal", 3, 4))
sketch16.addConstraint(Sketcher.Constraint("Equal", 4, 5))
sketch16.addConstraint(Sketcher.Constraint("Equal", 5, 6))
sketch16.addConstraint(Sketcher.Constraint("Horizontal", 0, 3, 1, 3))
sketch16.addConstraint(Sketcher.Constraint("Horizontal", 3, 3, 4, 3))
sketch16.addConstraint(Sketcher.Constraint("Horizontal", 2, 3, 5, 3))
sketch16.addConstraint(Sketcher.Constraint("Horizontal", 1, 3, 6, 3))
sketch16.addConstraint(Sketcher.Constraint("Vertical", 2, 3, 3, 3))
sketch16.addConstraint(Sketcher.Constraint("Vertical", 4, 3, 5, 3))
sketch16.addConstraint(Sketcher.Constraint("Diameter", 0, 120.0))
sketch16.addConstraint(Sketcher.Constraint("DistanceX", -1, 1, 0, 3, 3750.0))
sketch16.addConstraint(Sketcher.Constraint("DistanceY", -1, 1, 0, 3, 3150.0))
sketch16.addConstraint(Sketcher.Constraint("DistanceX", -1, 1, 1, 3, 1050.0))
sketch16.addConstraint(Sketcher.Constraint("DistanceX", -1, 1, 2, 3, 750.0))
sketch16.addConstraint(Sketcher.Constraint("DistanceY", -1, 1, 2, 3, 1700.0))
sketch16.addConstraint(Sketcher.Constraint("DistanceY", -1, 1, 3, 3, 800.0))
sketch16.addConstraint(Sketcher.Constraint("DistanceX", -1, 1, 4, 3, 3600.0))
sketch16.addConstraint(Sketcher.Constraint("DistanceX", -1, 1, 6, 3, 1950.0))
sketch16.addConstraint(Sketcher.Constraint("Diameter", 1, 120.758237))
sketch16.setExpression("Constraints[11]", "Params.sketch16_diameter")
pad16 = doc.addObject("PartDesign::Pad", "Pad015")
body14.addObject(pad16)
pad16.Profile = sketch16
pad16.setExpression("Length", "Params.pad16_length")
doc.recompute()

body15 = doc.addObject("PartDesign::Body", "Body014")
body15.BaseFeature = body14
boolean12 = doc.addObject("PartDesign::Boolean", "Boolean011")
body.addObject(boolean12)
boolean12.Type = "Cut"
boolean12.addObjects([body15])
doc.recompute()

boolean13 = doc.addObject("PartDesign::Boolean", "Boolean012")
body2.addObject(boolean13)
boolean13.Type = "Cut"
boolean13.addObjects([body14])

doc.recompute()
